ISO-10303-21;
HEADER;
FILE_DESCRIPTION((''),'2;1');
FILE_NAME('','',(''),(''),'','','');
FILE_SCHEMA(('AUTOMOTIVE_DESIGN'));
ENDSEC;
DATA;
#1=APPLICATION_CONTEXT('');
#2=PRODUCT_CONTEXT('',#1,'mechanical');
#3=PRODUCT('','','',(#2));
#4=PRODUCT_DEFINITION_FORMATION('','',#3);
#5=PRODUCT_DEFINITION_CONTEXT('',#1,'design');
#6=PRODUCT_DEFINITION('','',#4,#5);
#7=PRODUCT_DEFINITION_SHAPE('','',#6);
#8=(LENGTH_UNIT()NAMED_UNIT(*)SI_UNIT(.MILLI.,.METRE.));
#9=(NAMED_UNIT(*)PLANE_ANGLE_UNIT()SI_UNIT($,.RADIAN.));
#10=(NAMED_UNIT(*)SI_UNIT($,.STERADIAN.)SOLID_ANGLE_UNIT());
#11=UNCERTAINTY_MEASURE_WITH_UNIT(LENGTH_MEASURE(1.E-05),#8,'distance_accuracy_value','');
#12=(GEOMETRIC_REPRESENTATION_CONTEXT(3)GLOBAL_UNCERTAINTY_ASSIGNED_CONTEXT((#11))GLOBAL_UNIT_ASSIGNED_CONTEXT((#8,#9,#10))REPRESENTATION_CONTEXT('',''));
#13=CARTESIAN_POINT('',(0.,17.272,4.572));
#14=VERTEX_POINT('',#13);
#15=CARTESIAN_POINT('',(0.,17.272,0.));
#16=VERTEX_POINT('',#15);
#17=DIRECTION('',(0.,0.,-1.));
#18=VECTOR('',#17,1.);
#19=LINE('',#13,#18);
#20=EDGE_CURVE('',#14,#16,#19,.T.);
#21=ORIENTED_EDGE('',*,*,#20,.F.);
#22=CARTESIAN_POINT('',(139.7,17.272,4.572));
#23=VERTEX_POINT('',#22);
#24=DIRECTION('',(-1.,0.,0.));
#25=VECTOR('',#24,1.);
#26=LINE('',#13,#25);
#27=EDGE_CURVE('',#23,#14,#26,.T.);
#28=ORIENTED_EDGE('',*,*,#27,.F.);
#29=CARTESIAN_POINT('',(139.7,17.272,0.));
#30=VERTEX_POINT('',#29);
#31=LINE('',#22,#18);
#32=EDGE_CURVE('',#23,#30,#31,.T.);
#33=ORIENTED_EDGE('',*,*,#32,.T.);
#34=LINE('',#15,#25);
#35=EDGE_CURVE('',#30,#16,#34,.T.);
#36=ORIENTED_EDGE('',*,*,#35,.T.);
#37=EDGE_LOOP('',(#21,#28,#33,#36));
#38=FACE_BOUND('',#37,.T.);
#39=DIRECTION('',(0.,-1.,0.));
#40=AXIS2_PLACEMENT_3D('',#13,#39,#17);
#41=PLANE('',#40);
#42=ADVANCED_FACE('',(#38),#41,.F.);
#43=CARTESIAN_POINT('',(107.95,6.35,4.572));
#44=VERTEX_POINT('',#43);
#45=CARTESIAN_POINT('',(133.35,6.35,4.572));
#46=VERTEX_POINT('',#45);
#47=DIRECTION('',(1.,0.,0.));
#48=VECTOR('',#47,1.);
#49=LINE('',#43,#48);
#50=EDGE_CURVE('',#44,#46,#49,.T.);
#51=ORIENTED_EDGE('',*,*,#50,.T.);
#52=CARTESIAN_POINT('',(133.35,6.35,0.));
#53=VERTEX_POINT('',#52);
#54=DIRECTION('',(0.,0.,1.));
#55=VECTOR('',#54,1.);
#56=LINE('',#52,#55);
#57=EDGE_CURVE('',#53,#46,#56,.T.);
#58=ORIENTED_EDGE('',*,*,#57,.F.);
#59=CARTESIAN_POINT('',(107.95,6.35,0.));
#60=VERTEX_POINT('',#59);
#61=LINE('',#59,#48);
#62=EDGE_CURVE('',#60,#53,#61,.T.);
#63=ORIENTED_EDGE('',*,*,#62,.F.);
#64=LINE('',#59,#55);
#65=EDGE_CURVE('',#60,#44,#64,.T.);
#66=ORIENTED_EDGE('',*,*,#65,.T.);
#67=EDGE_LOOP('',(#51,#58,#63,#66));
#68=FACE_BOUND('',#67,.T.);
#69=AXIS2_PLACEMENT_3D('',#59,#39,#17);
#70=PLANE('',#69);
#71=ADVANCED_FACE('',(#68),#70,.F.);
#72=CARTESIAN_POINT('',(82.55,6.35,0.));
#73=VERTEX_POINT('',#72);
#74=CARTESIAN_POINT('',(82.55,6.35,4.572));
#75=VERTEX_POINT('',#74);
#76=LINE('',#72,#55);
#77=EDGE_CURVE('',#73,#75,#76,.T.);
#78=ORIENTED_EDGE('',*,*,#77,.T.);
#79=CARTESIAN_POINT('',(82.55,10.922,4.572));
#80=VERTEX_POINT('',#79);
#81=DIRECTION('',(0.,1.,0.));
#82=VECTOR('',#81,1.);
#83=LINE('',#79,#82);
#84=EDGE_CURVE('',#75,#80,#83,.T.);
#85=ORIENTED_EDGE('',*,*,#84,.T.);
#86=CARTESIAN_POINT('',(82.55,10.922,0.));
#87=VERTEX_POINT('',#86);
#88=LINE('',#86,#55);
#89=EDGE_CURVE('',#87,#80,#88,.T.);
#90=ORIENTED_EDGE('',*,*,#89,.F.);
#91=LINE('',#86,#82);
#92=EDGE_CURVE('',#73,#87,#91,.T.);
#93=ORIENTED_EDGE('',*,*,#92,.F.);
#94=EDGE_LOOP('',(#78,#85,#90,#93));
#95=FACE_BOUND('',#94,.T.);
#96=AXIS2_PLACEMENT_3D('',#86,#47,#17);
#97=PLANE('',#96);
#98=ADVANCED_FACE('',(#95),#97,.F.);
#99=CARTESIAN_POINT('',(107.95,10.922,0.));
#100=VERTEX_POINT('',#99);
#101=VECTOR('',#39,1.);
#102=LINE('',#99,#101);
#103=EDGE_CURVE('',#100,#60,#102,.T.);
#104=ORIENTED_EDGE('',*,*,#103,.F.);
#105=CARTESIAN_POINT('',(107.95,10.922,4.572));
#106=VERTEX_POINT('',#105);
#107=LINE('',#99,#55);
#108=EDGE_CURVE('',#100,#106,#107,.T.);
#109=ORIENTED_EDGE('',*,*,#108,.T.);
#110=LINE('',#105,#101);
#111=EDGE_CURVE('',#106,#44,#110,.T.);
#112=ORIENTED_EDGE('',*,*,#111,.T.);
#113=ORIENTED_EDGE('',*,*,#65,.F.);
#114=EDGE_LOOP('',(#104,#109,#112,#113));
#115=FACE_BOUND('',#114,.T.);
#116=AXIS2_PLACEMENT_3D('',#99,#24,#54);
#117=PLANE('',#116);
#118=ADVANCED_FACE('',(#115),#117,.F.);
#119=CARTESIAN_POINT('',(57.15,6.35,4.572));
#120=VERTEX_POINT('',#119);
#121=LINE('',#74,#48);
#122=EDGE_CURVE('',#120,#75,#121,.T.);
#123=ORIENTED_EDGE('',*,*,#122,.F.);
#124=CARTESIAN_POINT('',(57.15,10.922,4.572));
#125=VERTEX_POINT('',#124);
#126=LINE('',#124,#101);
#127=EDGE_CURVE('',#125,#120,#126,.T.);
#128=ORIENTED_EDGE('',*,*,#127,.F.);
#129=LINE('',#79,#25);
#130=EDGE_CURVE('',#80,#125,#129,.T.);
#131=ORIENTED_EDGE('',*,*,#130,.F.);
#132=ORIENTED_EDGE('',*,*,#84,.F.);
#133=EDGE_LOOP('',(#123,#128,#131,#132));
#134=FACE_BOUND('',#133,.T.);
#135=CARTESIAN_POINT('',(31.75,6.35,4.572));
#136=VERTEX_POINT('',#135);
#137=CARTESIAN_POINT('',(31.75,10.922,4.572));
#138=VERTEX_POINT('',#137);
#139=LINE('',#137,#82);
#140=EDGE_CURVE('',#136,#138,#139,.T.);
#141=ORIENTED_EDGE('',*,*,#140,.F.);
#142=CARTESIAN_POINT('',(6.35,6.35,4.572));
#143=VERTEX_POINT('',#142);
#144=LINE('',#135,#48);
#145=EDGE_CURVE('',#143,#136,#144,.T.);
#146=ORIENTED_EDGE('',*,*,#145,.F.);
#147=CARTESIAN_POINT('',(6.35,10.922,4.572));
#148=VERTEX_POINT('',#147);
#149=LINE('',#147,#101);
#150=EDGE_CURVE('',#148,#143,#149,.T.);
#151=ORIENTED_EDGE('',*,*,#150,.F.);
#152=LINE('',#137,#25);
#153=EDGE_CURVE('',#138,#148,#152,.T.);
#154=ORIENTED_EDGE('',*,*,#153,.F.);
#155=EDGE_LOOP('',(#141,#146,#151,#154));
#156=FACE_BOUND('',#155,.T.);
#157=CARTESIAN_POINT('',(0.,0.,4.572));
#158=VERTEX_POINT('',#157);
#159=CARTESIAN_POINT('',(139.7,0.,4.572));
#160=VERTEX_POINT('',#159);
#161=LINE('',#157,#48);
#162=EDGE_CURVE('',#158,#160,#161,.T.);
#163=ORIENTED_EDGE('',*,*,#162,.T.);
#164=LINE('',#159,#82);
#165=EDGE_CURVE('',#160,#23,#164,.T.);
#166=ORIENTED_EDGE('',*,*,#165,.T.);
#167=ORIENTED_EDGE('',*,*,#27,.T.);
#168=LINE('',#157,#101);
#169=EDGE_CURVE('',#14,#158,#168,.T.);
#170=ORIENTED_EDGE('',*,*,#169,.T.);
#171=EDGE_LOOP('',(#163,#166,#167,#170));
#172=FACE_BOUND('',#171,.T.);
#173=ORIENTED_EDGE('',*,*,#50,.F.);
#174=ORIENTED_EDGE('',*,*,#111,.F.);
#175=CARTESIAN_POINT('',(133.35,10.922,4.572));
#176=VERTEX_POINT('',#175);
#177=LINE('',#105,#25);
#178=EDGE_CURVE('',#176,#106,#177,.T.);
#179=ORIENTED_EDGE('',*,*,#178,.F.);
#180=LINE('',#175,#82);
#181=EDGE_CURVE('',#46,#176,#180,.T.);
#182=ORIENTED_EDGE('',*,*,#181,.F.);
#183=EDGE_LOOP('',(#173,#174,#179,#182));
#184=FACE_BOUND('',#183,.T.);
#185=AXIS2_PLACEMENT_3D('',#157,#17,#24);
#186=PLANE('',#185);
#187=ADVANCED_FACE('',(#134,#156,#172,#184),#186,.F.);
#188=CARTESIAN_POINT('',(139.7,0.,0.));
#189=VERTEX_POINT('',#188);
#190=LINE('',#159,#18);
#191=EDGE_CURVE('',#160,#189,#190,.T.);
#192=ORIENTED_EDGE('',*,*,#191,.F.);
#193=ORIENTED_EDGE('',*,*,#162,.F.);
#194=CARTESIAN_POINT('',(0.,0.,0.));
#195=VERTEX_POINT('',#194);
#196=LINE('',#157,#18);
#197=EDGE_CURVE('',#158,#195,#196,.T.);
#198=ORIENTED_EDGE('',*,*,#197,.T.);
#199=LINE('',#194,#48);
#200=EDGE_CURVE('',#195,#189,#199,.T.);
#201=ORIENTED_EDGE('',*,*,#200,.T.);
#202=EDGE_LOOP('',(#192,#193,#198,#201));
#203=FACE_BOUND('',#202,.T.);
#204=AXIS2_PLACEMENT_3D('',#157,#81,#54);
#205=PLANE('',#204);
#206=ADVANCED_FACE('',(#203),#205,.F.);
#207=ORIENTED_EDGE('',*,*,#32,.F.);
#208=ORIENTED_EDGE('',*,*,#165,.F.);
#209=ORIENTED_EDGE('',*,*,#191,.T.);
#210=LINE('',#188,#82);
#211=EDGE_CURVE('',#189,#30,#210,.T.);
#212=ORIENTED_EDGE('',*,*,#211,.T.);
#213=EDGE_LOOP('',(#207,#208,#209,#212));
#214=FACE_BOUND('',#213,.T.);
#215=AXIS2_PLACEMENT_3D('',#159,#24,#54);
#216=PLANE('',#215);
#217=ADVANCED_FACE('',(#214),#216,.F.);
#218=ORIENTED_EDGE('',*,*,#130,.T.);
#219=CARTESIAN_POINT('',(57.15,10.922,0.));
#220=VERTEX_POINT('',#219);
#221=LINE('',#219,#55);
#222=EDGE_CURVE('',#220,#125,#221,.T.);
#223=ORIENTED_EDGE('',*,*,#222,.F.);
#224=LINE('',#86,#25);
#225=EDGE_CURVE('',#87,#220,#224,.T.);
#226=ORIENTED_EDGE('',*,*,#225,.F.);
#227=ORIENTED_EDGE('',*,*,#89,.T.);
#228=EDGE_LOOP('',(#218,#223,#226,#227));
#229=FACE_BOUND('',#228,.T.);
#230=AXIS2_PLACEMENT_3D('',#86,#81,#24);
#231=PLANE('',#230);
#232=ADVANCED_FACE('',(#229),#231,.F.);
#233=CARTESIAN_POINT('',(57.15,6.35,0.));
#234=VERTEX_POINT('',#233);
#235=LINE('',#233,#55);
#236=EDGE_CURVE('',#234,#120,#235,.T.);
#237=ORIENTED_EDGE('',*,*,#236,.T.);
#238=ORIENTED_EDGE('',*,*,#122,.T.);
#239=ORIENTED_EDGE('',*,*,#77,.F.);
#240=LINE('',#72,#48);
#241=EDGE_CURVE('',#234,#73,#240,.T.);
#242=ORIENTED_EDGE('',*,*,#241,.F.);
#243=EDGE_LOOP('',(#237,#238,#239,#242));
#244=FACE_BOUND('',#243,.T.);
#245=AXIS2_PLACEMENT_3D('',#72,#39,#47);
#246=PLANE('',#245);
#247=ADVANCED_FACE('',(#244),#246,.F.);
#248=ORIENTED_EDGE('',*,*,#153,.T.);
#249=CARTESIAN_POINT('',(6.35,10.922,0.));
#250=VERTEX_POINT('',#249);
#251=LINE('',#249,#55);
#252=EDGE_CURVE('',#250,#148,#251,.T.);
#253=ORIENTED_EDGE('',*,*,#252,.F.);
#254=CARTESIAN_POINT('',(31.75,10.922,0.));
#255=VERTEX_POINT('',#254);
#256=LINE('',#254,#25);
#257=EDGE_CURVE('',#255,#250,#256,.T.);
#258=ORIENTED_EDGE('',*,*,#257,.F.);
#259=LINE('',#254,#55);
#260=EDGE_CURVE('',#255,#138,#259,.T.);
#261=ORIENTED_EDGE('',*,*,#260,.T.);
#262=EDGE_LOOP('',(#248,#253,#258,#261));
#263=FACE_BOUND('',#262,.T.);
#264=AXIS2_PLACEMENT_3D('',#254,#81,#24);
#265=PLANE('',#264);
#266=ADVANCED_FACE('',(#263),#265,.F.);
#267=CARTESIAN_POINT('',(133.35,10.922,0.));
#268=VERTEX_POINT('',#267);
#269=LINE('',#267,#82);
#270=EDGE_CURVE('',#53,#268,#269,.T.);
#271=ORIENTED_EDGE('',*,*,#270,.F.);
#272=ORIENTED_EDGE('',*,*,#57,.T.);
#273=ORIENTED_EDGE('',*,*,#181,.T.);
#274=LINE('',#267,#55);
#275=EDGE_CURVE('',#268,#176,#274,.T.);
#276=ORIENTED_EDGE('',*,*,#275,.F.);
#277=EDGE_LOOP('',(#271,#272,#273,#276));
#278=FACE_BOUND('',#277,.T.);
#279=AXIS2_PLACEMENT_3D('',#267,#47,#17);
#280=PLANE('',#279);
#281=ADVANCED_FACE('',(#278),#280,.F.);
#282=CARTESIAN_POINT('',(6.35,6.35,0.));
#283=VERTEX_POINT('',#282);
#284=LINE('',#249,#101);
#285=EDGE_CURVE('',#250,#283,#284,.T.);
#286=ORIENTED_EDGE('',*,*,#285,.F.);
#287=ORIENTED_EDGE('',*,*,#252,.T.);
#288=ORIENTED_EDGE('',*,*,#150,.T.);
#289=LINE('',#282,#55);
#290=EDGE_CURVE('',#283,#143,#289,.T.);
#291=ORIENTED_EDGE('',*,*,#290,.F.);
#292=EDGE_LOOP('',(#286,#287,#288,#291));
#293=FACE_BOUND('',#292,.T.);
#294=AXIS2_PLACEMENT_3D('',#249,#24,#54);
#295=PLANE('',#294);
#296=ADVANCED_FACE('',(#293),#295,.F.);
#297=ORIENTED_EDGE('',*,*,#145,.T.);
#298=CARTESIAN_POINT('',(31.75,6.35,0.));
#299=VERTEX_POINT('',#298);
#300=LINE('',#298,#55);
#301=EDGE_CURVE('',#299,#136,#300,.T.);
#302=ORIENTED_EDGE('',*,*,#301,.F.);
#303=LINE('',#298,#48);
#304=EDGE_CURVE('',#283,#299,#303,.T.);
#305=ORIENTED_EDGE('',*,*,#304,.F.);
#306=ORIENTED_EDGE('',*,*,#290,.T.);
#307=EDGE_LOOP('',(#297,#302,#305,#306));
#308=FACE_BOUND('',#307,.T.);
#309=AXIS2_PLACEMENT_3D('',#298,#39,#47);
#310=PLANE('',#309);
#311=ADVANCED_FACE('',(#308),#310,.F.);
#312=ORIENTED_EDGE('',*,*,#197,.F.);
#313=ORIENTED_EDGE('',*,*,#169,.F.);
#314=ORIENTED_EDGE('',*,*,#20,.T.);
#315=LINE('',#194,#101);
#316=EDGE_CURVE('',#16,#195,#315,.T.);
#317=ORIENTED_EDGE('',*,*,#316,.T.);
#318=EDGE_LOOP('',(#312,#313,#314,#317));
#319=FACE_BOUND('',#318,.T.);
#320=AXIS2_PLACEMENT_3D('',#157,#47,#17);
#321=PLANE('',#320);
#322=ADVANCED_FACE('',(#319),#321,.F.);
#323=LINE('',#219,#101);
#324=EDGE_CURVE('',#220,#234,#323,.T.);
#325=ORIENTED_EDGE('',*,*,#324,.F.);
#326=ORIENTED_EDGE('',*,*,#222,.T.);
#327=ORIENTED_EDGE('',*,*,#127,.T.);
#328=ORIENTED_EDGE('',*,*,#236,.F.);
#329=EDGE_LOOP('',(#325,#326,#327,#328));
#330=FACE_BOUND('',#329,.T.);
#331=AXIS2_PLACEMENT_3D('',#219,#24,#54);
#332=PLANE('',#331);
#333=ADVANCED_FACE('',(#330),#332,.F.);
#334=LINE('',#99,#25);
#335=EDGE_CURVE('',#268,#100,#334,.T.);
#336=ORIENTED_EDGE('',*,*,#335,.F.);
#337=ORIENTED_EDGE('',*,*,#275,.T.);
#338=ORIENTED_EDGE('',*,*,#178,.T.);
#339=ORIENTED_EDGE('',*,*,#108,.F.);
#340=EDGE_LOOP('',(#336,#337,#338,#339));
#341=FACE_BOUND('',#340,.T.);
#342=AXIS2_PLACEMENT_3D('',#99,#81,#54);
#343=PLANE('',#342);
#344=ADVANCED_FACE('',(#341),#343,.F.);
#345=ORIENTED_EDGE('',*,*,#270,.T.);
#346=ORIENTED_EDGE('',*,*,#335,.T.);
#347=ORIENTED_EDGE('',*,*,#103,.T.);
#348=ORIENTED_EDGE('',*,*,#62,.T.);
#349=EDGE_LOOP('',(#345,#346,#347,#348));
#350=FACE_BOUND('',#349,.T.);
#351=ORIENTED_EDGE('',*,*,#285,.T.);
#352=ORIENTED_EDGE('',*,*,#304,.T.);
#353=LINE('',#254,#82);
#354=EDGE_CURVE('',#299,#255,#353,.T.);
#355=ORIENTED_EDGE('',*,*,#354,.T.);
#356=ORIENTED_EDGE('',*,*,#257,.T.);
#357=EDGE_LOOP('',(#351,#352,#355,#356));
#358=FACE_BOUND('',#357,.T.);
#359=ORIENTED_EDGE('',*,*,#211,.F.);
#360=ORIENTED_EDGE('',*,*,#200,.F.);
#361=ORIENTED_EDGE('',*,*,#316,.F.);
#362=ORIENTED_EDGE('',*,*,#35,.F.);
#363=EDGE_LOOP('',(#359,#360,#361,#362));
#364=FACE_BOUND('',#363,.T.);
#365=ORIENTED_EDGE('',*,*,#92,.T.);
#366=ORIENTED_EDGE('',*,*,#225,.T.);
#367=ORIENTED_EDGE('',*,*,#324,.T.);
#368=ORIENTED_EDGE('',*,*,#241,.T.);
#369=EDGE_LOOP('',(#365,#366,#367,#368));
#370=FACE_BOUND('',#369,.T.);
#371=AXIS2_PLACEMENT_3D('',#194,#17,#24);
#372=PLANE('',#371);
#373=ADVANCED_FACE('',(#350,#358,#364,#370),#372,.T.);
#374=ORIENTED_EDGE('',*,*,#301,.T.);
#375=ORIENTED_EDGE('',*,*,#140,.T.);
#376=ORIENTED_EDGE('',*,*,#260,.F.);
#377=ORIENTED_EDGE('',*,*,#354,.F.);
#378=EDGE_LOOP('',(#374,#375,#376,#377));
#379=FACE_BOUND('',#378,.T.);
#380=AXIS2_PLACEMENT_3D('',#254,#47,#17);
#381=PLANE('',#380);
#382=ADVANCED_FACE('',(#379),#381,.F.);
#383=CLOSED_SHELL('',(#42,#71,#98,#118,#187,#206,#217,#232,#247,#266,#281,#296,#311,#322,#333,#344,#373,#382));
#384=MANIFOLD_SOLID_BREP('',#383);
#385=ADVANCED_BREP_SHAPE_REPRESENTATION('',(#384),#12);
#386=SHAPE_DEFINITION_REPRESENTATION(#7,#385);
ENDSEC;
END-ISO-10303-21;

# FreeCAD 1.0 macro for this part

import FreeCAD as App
import Part
import Sketcher
from FreeCAD import Vector
Q = App.Units.Quantity

doc = App.newDocument("Part")
body = doc.addObject("PartDesign::Body", "Body")

sketch1 = body.newObject("Sketcher::SketchObject", "Sketch")
sketch1.AttachmentSupport = (doc.getObject("XY_Plane"), [""])
sketch1.MapMode = "FlatFace"
sketch1.addGeometry([
    Part.LineSegment(Vector(0, 17, 0), Vector(0, 0, 0)),
    Part.LineSegment(Vector(0, 0, 0), Vector(140, 0, 0)),
    Part.LineSegment(Vector(140, 0, 0), Vector(140, 17, 0)),
    Part.LineSegment(Vector(140, 17, 0), Vector(0, 17, 0)),
], False)
sketch1.addConstraint([
    Sketcher.Constraint("Coincident", 0, 2, 1, 1),
    Sketcher.Constraint("Coincident", 1, 2, 2, 1),
    Sketcher.Constraint("Coincident", 2, 2, 3, 1),
    Sketcher.Constraint("Coincident", 3, 2, 0, 1),
    Sketcher.Constraint("Vertical", 0),
    Sketcher.Constraint("Horizontal", 1),
    Sketcher.Constraint("Vertical", 2),
    Sketcher.Constraint("Horizontal", 3),
    Sketcher.Constraint("Coincident", 0, 2, -1, 1),
    Sketcher.Constraint("DistanceX", 1, 1, 1, 2, Q("5.5 in")),
    Sketcher.Constraint("DistanceY", 0, 2, 0, 1, Q("0.68 in")),
])
pad1 = body.newObject("PartDesign::Pad", "Pad")
pad1.Profile = sketch1
pad1.Length = Q("0.18 in")

sketch2 = body.newObject("Sketcher::SketchObject", "Sketch001")
sketch2.AttachmentSupport = (doc.getObject("XY_Plane"), [""])
sketch2.MapMode = "FlatFace"
sketch2.AttachmentOffset = App.Placement(Vector(0, 0, 0.18 * 25.4), App.Rotation())
sketch2.addGeometry([
    Part.LineSegment(Vector(108, 10.9, 0), Vector(108, 6.3, 0)),
    Part.LineSegment(Vector(108, 6.3, 0), Vector(133.3, 6.3, 0)),
    Part.LineSegment(Vector(133.3, 6.3, 0), Vector(133.3, 10.9, 0)),
    Part.LineSegment(Vector(133.3, 10.9, 0), Vector(108, 10.9, 0)),
    Part.LineSegment(Vector(57.1, 10.9, 0), Vector(57.1, 6.3, 0)),
    Part.LineSegment(Vector(57.1, 6.3, 0), Vector(82.5, 6.3, 0)),
    Part.LineSegment(Vector(82.5, 6.3, 0), Vector(82.5, 10.9, 0)),
    Part.LineSegment(Vector(82.5, 10.9, 0), Vector(57.1, 10.9, 0)),
    Part.LineSegment(Vector(6.3, 10.9, 0), Vector(6.3, 6.3, 0)),
    Part.LineSegment(Vector(6.3, 6.3, 0), Vector(31.8, 6.3, 0)),
    Part.LineSegment(Vector(31.8, 6.3, 0), Vector(31.8, 10.9, 0)),
    Part.LineSegment(Vector(31.8, 10.9, 0), Vector(6.3, 10.9, 0)),
], False)
sketch2.addConstraint([
    Sketcher.Constraint("Coincident", 0, 2, 1, 1),
    Sketcher.Constraint("Coincident", 1, 2, 2, 1),
    Sketcher.Constraint("Coincident", 2, 2, 3, 1),
    Sketcher.Constraint("Coincident", 3, 2, 0, 1),
    Sketcher.Constraint("Coincident", 4, 2, 5, 1),
    Sketcher.Constraint("Coincident", 5, 2, 6, 1),
    Sketcher.Constraint("Coincident", 6, 2, 7, 1),
    Sketcher.Constraint("Coincident", 7, 2, 4, 1),
    Sketcher.Constraint("Coincident", 8, 2, 9, 1),
    Sketcher.Constraint("Coincident", 9, 2, 10, 1),
    Sketcher.Constraint("Coincident", 10, 2, 11, 1),
    Sketcher.Constraint("Coincident", 11, 2, 8, 1),
    Sketcher.Constraint("Vertical", 0),
    Sketcher.Constraint("Horizontal", 1),
    Sketcher.Constraint("Vertical", 2),
    Sketcher.Constraint("Horizontal", 3),
    Sketcher.Constraint("Vertical", 4),
    Sketcher.Constraint("Horizontal", 5),
    Sketcher.Constraint("Vertical", 6),
    Sketcher.Constraint("Horizontal", 7),
    Sketcher.Constraint("Vertical", 8),
    Sketcher.Constraint("Horizontal", 9),
    Sketcher.Constraint("Vertical", 10),
    Sketcher.Constraint("Horizontal", 11),
    Sketcher.Constraint("Horizontal", 1, 2, 4, 2),
    Sketcher.Constraint("Horizontal", 3, 2, 6, 2),
    Sketcher.Constraint("Horizontal", 5, 2, 8, 2),
    Sketcher.Constraint("Horizontal", 7, 2, 10, 2),
    Sketcher.Constraint("Equal", 3, 5),
    Sketcher.Constraint("Equal", 7, 9),
    Sketcher.Constraint("DistanceX", 1, 1, 1, 2, Q("1 in")),
    Sketcher.Constraint("DistanceX", 4, 2, 0, 2, Q("2 in")),
    Sketcher.Constraint("DistanceX", 8, 2, 4, 2, Q("2 in")),
    Sketcher.Constraint("DistanceY", 0, 2, 0, 1, Q("0.18 in")),
    Sketcher.Constraint("DistanceX", -1, 1, 0, 2, Q("4.25 in")),
    Sketcher.Constraint("DistanceY", -1, 1, 0, 2, Q("0.25 in")),
])
pocket1 = body.newObject("PartDesign::Pocket", "Pocket")
pocket1.Profile = sketch2
pocket1.Length = Q("0.18 in")

doc.recompute()
